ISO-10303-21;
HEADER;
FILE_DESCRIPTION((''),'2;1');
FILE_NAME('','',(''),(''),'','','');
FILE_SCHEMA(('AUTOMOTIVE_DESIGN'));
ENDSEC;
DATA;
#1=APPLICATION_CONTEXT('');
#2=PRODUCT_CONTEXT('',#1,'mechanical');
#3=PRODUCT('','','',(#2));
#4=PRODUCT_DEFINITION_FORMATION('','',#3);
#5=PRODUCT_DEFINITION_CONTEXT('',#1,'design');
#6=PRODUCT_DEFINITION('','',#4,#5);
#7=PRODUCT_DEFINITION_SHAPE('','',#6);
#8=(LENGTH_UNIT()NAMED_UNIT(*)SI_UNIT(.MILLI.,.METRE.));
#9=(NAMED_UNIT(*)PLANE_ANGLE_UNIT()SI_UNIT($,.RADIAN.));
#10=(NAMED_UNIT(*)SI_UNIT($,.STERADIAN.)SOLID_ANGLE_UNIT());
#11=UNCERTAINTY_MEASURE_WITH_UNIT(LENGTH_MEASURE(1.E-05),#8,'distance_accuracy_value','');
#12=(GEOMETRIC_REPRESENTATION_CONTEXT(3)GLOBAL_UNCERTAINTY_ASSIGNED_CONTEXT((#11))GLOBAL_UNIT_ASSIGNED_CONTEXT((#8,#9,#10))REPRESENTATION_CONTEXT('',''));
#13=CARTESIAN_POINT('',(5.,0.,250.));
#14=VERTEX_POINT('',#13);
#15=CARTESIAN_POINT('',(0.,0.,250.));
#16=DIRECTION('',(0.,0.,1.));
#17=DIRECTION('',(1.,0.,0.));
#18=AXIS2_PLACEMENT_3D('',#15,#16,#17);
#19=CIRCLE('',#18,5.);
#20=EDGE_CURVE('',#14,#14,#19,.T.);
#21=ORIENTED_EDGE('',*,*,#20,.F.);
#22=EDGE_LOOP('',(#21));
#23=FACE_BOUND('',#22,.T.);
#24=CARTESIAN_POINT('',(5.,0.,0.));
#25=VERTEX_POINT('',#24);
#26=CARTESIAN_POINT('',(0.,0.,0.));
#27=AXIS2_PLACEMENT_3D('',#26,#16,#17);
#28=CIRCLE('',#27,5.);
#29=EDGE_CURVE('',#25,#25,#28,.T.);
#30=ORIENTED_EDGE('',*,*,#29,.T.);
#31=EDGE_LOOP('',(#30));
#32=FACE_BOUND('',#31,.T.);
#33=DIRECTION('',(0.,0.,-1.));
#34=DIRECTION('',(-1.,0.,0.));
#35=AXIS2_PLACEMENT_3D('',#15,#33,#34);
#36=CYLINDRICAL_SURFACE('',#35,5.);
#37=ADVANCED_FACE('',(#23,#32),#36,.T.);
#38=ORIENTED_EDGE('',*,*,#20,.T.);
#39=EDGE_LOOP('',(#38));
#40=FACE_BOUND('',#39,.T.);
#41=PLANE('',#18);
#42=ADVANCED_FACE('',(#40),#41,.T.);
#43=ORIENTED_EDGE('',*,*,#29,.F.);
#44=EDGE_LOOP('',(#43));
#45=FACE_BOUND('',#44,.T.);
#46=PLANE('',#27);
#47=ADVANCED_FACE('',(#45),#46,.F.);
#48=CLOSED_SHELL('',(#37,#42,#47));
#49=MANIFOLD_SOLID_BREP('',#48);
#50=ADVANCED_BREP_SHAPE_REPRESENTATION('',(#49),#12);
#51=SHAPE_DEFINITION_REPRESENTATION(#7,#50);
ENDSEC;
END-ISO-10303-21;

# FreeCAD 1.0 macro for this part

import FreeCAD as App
import Part
import Sketcher

doc = App.newDocument("Part")
body = doc.addObject("PartDesign::Body", "Body")

# Sketch on XY plane
sketch1 = body.newObject("Sketcher::SketchObject", "Sketch")
sketch1.AttachmentSupport = (doc.getObject("XY_Plane"), [""])
sketch1.MapMode = "FlatFace"
sketch1.addGeometry(Part.Circle(App.Vector(0, 0, 0), App.Vector(0, 0, 1), 5), False)
sketch1.addConstraint(Sketcher.Constraint("Coincident", 0, 3, -1, 1))
sketch1.addConstraint(Sketcher.Constraint("Diameter", 0, 10.0))
pad1 = body.newObject("PartDesign::Pad", "Pad")
pad1.Profile = sketch1
pad1.Length = 250

doc.recompute()
